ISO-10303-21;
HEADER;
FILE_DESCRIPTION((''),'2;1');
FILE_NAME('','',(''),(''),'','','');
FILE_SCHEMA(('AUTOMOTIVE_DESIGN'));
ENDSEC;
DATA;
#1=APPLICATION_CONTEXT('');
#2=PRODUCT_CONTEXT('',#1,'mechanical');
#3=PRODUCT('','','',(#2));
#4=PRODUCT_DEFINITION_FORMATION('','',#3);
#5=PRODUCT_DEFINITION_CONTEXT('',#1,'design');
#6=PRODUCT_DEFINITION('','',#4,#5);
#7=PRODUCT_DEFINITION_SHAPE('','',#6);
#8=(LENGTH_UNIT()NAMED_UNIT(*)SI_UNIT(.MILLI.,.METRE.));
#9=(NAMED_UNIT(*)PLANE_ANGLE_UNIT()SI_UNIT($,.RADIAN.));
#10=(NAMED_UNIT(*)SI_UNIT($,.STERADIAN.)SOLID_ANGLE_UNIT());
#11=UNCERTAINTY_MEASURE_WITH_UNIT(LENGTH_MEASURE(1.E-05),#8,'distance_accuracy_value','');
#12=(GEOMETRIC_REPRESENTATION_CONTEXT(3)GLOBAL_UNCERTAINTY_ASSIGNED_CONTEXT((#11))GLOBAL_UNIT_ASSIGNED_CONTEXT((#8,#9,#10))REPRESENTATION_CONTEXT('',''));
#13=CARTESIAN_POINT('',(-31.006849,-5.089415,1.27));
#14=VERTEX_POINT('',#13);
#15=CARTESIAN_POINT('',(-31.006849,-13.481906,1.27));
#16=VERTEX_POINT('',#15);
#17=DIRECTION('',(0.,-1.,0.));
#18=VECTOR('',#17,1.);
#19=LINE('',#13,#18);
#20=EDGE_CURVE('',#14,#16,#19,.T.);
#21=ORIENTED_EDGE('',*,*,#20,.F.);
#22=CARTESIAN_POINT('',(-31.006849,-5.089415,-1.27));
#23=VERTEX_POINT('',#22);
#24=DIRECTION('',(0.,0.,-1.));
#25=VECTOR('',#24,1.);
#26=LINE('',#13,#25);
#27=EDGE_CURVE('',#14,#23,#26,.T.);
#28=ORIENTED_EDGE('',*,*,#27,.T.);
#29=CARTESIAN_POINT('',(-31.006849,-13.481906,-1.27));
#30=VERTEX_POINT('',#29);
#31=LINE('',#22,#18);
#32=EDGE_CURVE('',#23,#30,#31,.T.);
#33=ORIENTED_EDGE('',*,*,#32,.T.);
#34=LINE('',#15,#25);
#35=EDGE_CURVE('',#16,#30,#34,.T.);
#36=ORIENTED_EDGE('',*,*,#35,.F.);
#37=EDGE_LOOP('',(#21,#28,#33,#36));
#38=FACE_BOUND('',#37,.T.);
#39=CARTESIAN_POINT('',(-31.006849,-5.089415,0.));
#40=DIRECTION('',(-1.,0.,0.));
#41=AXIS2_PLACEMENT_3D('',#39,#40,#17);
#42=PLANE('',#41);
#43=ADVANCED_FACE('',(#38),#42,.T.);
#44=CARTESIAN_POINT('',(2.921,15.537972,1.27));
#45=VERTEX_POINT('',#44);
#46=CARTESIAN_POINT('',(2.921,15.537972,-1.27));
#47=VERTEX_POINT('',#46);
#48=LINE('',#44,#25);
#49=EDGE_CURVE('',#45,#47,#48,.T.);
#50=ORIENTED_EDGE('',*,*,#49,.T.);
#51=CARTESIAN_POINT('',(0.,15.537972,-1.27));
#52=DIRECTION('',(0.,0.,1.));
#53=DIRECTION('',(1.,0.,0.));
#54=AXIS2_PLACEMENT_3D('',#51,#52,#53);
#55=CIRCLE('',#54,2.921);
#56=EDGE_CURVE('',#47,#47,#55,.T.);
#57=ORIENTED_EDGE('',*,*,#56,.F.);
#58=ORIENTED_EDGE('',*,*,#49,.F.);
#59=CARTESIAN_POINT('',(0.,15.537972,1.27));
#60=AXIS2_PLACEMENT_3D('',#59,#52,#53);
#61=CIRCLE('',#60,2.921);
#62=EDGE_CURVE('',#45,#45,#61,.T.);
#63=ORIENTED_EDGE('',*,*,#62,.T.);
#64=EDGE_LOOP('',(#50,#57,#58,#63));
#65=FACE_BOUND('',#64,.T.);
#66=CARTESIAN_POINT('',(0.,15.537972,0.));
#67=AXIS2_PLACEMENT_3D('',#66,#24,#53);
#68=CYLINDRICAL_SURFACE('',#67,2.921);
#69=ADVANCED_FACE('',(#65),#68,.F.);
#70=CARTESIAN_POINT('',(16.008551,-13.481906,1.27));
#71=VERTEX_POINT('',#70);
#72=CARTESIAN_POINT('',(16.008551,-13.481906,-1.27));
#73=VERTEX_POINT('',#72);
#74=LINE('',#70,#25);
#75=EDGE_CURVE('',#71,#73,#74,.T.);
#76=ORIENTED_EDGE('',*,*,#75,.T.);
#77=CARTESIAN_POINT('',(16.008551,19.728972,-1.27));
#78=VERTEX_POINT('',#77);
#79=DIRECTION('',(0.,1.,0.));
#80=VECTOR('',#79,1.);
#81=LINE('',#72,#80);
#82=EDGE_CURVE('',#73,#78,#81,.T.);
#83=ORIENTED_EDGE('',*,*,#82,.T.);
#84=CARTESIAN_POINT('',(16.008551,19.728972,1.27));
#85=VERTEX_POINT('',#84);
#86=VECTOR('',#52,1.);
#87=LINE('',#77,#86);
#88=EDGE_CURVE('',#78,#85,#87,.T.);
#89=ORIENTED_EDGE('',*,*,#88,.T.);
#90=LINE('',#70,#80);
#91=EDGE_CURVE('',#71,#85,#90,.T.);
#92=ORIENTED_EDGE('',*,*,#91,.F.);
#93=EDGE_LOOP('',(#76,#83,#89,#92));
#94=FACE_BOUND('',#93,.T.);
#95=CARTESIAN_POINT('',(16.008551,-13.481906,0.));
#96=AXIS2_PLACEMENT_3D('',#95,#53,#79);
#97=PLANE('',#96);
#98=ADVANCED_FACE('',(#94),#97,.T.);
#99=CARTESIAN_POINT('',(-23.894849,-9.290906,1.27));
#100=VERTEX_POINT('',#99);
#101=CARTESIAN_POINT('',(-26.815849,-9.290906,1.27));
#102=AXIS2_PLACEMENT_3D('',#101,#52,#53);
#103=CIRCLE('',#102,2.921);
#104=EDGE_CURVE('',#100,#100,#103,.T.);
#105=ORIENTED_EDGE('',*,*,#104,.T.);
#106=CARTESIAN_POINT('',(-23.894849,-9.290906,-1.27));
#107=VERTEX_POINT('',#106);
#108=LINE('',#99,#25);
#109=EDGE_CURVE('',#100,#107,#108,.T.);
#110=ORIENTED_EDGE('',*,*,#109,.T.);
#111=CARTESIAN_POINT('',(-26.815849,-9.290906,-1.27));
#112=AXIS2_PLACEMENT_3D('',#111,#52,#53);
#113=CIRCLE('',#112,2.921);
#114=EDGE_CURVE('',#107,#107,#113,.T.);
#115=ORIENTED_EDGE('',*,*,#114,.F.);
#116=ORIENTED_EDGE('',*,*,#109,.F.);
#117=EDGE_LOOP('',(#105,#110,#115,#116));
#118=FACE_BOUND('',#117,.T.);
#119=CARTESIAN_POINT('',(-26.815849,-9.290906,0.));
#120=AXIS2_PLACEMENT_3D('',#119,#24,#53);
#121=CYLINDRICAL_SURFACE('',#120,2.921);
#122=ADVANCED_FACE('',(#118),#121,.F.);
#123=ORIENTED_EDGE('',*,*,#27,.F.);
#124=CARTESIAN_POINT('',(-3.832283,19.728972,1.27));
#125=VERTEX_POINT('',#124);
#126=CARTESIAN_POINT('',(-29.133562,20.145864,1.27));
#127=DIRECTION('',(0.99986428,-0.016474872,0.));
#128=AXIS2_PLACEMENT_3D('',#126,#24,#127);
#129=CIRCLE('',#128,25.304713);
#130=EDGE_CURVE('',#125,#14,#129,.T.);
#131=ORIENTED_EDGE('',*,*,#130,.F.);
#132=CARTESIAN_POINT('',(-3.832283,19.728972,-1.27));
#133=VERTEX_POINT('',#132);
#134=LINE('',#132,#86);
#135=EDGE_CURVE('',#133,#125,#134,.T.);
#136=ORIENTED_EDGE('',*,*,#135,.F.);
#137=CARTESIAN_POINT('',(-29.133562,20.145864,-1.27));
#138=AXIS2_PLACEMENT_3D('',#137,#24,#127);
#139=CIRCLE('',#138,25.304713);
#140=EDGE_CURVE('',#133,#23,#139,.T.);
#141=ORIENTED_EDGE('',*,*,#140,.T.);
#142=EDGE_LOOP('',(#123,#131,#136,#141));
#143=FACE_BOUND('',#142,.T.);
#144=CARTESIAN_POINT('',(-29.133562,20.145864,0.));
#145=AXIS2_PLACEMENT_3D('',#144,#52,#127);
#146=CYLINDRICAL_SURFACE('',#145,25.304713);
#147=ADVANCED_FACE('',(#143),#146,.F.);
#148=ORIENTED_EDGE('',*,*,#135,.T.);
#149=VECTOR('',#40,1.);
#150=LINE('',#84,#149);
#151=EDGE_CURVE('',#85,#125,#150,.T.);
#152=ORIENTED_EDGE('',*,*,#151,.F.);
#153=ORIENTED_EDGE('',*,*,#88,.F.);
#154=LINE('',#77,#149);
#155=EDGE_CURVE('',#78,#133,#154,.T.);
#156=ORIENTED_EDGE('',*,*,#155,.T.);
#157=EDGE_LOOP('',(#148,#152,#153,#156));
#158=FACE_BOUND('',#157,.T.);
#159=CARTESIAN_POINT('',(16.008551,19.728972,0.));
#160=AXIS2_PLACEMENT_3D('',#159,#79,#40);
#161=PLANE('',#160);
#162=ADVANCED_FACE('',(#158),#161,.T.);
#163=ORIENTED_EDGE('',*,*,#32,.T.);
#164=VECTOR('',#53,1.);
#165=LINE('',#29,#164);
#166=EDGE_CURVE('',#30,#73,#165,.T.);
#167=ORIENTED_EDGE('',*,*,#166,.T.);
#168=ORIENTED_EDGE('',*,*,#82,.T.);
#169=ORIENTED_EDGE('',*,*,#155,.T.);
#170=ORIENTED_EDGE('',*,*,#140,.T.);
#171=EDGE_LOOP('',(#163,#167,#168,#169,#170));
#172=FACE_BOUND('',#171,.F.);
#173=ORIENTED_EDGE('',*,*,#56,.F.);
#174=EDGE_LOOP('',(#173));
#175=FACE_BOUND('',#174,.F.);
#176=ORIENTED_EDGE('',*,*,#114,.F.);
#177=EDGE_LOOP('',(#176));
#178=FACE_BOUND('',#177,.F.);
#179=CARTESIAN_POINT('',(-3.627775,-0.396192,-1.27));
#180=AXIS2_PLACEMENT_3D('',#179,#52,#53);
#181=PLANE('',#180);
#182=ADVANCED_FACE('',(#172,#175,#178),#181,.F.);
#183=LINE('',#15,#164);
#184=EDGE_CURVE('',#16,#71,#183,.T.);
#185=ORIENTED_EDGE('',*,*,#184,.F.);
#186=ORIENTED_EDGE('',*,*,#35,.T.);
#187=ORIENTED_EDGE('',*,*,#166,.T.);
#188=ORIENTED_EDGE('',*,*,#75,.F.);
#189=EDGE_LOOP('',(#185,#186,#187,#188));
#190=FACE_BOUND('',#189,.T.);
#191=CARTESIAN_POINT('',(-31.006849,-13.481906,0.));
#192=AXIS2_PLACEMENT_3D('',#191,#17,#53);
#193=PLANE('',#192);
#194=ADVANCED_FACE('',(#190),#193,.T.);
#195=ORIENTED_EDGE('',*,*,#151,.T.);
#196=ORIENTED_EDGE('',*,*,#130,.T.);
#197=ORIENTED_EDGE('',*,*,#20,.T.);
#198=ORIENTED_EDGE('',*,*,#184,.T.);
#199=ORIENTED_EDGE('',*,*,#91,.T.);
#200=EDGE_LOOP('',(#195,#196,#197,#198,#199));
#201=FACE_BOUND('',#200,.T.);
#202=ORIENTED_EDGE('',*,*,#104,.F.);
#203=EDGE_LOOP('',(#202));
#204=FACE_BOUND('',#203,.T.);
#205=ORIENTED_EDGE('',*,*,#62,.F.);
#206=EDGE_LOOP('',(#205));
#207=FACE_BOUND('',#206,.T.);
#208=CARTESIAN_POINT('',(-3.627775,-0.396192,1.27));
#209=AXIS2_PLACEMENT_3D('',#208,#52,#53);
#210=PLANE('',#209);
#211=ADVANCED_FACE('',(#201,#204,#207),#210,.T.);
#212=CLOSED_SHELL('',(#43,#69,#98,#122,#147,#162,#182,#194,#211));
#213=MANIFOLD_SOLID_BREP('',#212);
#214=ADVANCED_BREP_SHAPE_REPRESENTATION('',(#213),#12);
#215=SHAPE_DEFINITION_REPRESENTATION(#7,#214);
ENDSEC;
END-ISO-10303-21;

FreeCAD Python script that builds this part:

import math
import FreeCAD as App
import Part
import Sketcher
Q = App.Units.Quantity

doc = App.newDocument("Part")
body = doc.addObject("PartDesign::Body", "Body")

sketch1 = body.newObject("Sketcher::SketchObject", "Sketch")
sketch1.AttachmentSupport = (doc.getObject("XY_Plane"), [""])
sketch1.MapMode = "FlatFace"
sketch1.addGeometry(Part.LineSegment(App.Vector(16, -13.5, 0), App.Vector(16, 19.7, 0)), False)
sketch1.addGeometry(Part.LineSegment(App.Vector(16, 19.7, 0), App.Vector(-3.8, 19.7, 0)), False)
sketch1.addGeometry(Part.ArcOfCircle(Part.Circle(App.Vector(-29.1, 20.1, 0), App.Vector(0, 0, 1), 25.3), math.radians(-94), math.radians(-1)), False)
sketch1.addGeometry(Part.LineSegment(App.Vector(-31, -5.1, 0), App.Vector(-31, -13.5, 0)), False)
sketch1.addGeometry(Part.LineSegment(App.Vector(-31, -13.5, 0), App.Vector(16, -13.5, 0)), False)
sketch1.addGeometry(Part.Circle(App.Vector(-26.8, -9.3, 0), App.Vector(0, 0, 1), 2.9), False)
sketch1.addGeometry(Part.Circle(App.Vector(0, 15.5, 0), App.Vector(0, 0, 1), 2.9), False)
sketch1.addConstraint(Sketcher.Constraint("Coincident", 0, 2, 1, 1))
sketch1.addConstraint(Sketcher.Constraint("Coincident", 1, 2, 2, 2))
sketch1.addConstraint(Sketcher.Constraint("Coincident", 2, 1, 3, 1))
sketch1.addConstraint(Sketcher.Constraint("Coincident", 3, 2, 4, 1))
sketch1.addConstraint(Sketcher.Constraint("Coincident", 4, 2, 0, 1))
sketch1.addConstraint(Sketcher.Constraint("Vertical", 0))
sketch1.addConstraint(Sketcher.Constraint("Horizontal", 1))
sketch1.addConstraint(Sketcher.Constraint("Vertical", 3))
sketch1.addConstraint(Sketcher.Constraint("Horizontal", 4))
sketch1.addConstraint(Sketcher.Constraint("Equal", 5, 6))
sketch1.addConstraint(Sketcher.Constraint("PointOnObject", 6, 3, -2))
sketch1.addConstraint(Sketcher.Constraint("Diameter", 5, Q("0.23 in")))
sketch1.addConstraint(Sketcher.Constraint("DistanceX", 4, 1, 4, 2, Q("1.851 in")))
sketch1.addConstraint(Sketcher.Constraint("DistanceY", 6, 3, 0, 2, Q("0.165 in")))
sketch1.addConstraint(Sketcher.Constraint("DistanceX", 5, 3, 0, 2, Q("1.686 in")))
sketch1.addConstraint(Sketcher.Constraint("DistanceY", 3, 2, 5, 3, Q("0.165 in")))
sketch1.addConstraint(Sketcher.Constraint("Radius", 2, Q("25.304713 mm")))
sketch1.addConstraint(Sketcher.Constraint("DistanceY", 3, 2, 3, 1, Q("8.392491 mm")))
sketch1.addConstraint(Sketcher.Constraint("DistanceX", 1, 2, 1, 1, Q("19.840834 mm")))
sketch1.addConstraint(Sketcher.Constraint("DistanceY", 0, 1, 0, 2, Q("33.210878 mm")))
sketch1.addConstraint(Sketcher.Constraint("DistanceX", 2, 3, -1, 1, Q("29.133562 mm")))
sketch1.addConstraint(Sketcher.Constraint("DistanceY", -1, 1, 0, 2, Q("19.728972 mm")))
pad1 = body.newObject("PartDesign::Pad", "Pad")
pad1.Profile = sketch1
pad1.Length = Q("0.1 in")
pad1.Midplane = True

doc.recompute()
